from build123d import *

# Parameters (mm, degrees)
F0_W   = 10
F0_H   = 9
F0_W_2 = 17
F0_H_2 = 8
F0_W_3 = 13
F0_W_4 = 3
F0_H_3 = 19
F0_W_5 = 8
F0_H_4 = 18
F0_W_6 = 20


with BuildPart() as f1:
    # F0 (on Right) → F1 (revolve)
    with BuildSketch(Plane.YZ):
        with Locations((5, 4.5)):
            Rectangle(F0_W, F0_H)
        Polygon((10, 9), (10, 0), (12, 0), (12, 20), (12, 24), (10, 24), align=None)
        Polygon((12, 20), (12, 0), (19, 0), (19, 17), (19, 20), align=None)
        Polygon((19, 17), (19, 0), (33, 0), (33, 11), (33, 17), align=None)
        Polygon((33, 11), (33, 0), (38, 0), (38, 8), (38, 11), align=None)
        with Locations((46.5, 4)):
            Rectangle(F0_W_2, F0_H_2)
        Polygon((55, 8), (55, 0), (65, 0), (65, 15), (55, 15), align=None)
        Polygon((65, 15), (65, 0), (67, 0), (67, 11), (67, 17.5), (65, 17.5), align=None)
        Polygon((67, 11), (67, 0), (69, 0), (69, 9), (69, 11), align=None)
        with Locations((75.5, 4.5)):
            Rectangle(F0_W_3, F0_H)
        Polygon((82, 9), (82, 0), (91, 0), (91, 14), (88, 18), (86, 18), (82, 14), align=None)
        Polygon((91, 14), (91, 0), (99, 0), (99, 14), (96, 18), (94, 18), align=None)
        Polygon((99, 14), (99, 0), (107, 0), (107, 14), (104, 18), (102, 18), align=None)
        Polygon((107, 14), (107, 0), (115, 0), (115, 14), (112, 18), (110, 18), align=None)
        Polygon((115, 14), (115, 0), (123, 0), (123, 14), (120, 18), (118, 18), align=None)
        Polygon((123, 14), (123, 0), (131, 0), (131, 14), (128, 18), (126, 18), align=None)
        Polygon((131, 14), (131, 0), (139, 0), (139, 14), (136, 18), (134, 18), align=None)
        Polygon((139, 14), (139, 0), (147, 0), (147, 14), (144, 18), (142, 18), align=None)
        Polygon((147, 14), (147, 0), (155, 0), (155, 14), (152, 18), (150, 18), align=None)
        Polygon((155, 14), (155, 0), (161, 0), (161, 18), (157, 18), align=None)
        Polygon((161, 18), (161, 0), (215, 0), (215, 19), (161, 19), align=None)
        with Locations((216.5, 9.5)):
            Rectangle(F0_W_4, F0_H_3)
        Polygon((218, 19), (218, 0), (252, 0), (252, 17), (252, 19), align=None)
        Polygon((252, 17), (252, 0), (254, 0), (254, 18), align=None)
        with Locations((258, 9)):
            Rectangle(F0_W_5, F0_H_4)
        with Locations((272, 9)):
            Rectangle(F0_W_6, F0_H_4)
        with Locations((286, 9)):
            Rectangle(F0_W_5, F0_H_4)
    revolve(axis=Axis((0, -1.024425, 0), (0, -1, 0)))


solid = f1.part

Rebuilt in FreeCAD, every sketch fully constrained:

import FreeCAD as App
import Part
import Sketcher
Q = App.Units.Quantity


def add_polygon(sketch, points):
    """Adds a closed chain of lines whose ends are joined by coincident constraints."""
    first, n = sketch.GeometryCount, len(points)
    for a, b in zip(points, points[1:] + points[:1]):
        sketch.addGeometry(Part.LineSegment(App.Vector(*a, 0), App.Vector(*b, 0)), False)
    for i in range(n):
        sketch.addConstraint(Sketcher.Constraint("Coincident", first + i, 2, first + (i + 1) % n, 1))

doc = App.newDocument("Part")
body = doc.addObject("PartDesign::Body", "Body")

# Sketch on YZ plane
sketch1 = doc.addObject("Sketcher::SketchObject", "Sketch")
body.addObject(sketch1)
sketch1.AttachmentSupport = (doc.YZ_Plane, [""])
sketch1.MapMode = "FlatFace"
add_polygon(sketch1, [(0, 9), (0, 0), (290, 0), (290, 18), (254, 18), (252, 17), (252, 19), (161, 19), (161, 18), (157, 18), (155, 14), (152, 18), (150, 18), (147, 14), (144, 18), (142, 18), (139, 14), (136, 18), (134, 18), (131, 14), (128, 18), (126, 18), (123, 14), (120, 18), (118, 18), (115, 14), (112, 18), (110, 18), (107, 14), (104, 18), (102, 18), (99, 14), (96, 18), (94, 18), (91, 14), (88, 18), (86, 18), (82, 14), (82, 9), (69, 9), (69, 11), (67, 11), (67, 17.5), (65, 17.5), (65, 15), (55, 15), (55, 8), (38, 8), (38, 11), (33, 11), (33, 17), (19, 17), (19, 20), (12, 20), (12, 24), (10, 24), (10, 9)])  # lines 0-56
sketch1.addConstraint(Sketcher.Constraint("Vertical", 0))
sketch1.addConstraint(Sketcher.Constraint("Horizontal", 1))
sketch1.addConstraint(Sketcher.Constraint("Vertical", 2))
sketch1.addConstraint(Sketcher.Constraint("Horizontal", 3))
sketch1.addConstraint(Sketcher.Constraint("Vertical", 5))
sketch1.addConstraint(Sketcher.Constraint("Horizontal", 6))
sketch1.addConstraint(Sketcher.Constraint("Vertical", 7))
sketch1.addConstraint(Sketcher.Constraint("Horizontal", 8))
sketch1.addConstraint(Sketcher.Constraint("Horizontal", 11))
sketch1.addConstraint(Sketcher.Constraint("Horizontal", 14))
sketch1.addConstraint(Sketcher.Constraint("Horizontal", 17))
sketch1.addConstraint(Sketcher.Constraint("Horizontal", 20))
sketch1.addConstraint(Sketcher.Constraint("Horizontal", 23))
sketch1.addConstraint(Sketcher.Constraint("Horizontal", 26))
sketch1.addConstraint(Sketcher.Constraint("Horizontal", 29))
sketch1.addConstraint(Sketcher.Constraint("Horizontal", 32))
sketch1.addConstraint(Sketcher.Constraint("Horizontal", 35))
sketch1.addConstraint(Sketcher.Constraint("Vertical", 37))
sketch1.addConstraint(Sketcher.Constraint("Horizontal", 38))
sketch1.addConstraint(Sketcher.Constraint("Vertical", 39))
sketch1.addConstraint(Sketcher.Constraint("Horizontal", 40))
sketch1.addConstraint(Sketcher.Constraint("Vertical", 41))
sketch1.addConstraint(Sketcher.Constraint("Horizontal", 42))
sketch1.addConstraint(Sketcher.Constraint("Vertical", 43))
sketch1.addConstraint(Sketcher.Constraint("Horizontal", 44))
sketch1.addConstraint(Sketcher.Constraint("Vertical", 45))
sketch1.addConstraint(Sketcher.Constraint("Horizontal", 46))
sketch1.addConstraint(Sketcher.Constraint("Vertical", 47))
sketch1.addConstraint(Sketcher.Constraint("Horizontal", 48))
sketch1.addConstraint(Sketcher.Constraint("Vertical", 49))
sketch1.addConstraint(Sketcher.Constraint("Horizontal", 50))
sketch1.addConstraint(Sketcher.Constraint("Vertical", 51))
sketch1.addConstraint(Sketcher.Constraint("Horizontal", 52))
sketch1.addConstraint(Sketcher.Constraint("Vertical", 53))
sketch1.addConstraint(Sketcher.Constraint("Horizontal", 54))
sketch1.addConstraint(Sketcher.Constraint("Vertical", 55))
sketch1.addConstraint(Sketcher.Constraint("Horizontal", 56))
sketch1.addConstraint(Sketcher.Constraint("Coincident", 0, 2, -1, 1))
sketch1.addConstraint(Sketcher.Constraint("Parallel", 10, 13))
sketch1.addConstraint(Sketcher.Constraint("Parallel", 12, 15))
sketch1.addConstraint(Sketcher.Constraint("Parallel", 13, 16))
sketch1.addConstraint(Sketcher.Constraint("Parallel", 15, 18))
sketch1.addConstraint(Sketcher.Constraint("Parallel", 16, 19))
sketch1.addConstraint(Sketcher.Constraint("Parallel", 18, 21))
sketch1.addConstraint(Sketcher.Constraint("Parallel", 19, 22))
sketch1.addConstraint(Sketcher.Constraint("Parallel", 21, 24))
sketch1.addConstraint(Sketcher.Constraint("Parallel", 22, 25))
sketch1.addConstraint(Sketcher.Constraint("Parallel", 24, 27))
sketch1.addConstraint(Sketcher.Constraint("Parallel", 25, 28))
sketch1.addConstraint(Sketcher.Constraint("Parallel", 27, 30))
sketch1.addConstraint(Sketcher.Constraint("Parallel", 28, 31))
sketch1.addConstraint(Sketcher.Constraint("Parallel", 30, 33))
sketch1.addConstraint(Sketcher.Constraint("Parallel", 31, 34))
sketch1.addConstraint(Sketcher.Constraint("Horizontal", 3, 2, 7, 2))
sketch1.addConstraint(Sketcher.Constraint("Horizontal", 8, 2, 10, 2))
sketch1.addConstraint(Sketcher.Constraint("Horizontal", 9, 2, 12, 2))
sketch1.addConstraint(Sketcher.Constraint("Horizontal", 11, 2, 13, 2))
sketch1.addConstraint(Sketcher.Constraint("Horizontal", 12, 2, 15, 2))
sketch1.addConstraint(Sketcher.Constraint("Horizontal", 14, 2, 16, 2))
sketch1.addConstraint(Sketcher.Constraint("Horizontal", 15, 2, 18, 2))
sketch1.addConstraint(Sketcher.Constraint("Horizontal", 17, 2, 19, 2))
sketch1.addConstraint(Sketcher.Constraint("Horizontal", 18, 2, 21, 2))
sketch1.addConstraint(Sketcher.Constraint("Horizontal", 20, 2, 22, 2))
sketch1.addConstraint(Sketcher.Constraint("Horizontal", 21, 2, 24, 2))
sketch1.addConstraint(Sketcher.Constraint("Horizontal", 23, 2, 25, 2))
sketch1.addConstraint(Sketcher.Constraint("Horizontal", 24, 2, 27, 2))
sketch1.addConstraint(Sketcher.Constraint("Horizontal", 26, 2, 28, 2))
sketch1.addConstraint(Sketcher.Constraint("Horizontal", 27, 2, 30, 2))
sketch1.addConstraint(Sketcher.Constraint("Horizontal", 29, 2, 31, 2))
sketch1.addConstraint(Sketcher.Constraint("Horizontal", 30, 2, 33, 2))
sketch1.addConstraint(Sketcher.Constraint("Horizontal", 32, 2, 34, 2))
sketch1.addConstraint(Sketcher.Constraint("Horizontal", 33, 2, 36, 2))
sketch1.addConstraint(Sketcher.Constraint("Horizontal", 40, 2, 47, 2))
sketch1.addConstraint(Sketcher.Constraint("Horizontal", 4, 2, 49, 2))
sketch1.addConstraint(Sketcher.Constraint("Horizontal", 38, 2, 55, 2))
sketch1.addConstraint(Sketcher.Constraint("Equal", 11, 14))
sketch1.addConstraint(Sketcher.Constraint("Equal", 14, 17))
sketch1.addConstraint(Sketcher.Constraint("Equal", 17, 20))
sketch1.addConstraint(Sketcher.Constraint("Equal", 20, 23))
sketch1.addConstraint(Sketcher.Constraint("Equal", 23, 26))
sketch1.addConstraint(Sketcher.Constraint("Equal", 26, 29))
sketch1.addConstraint(Sketcher.Constraint("Equal", 29, 32))
sketch1.addConstraint(Sketcher.Constraint("Equal", 32, 35))
sketch1.addConstraint(Sketcher.Constraint("Equal", 35, 40))
sketch1.addConstraint(Sketcher.Constraint("Equal", 40, 42))
sketch1.addConstraint(Sketcher.Constraint("Equal", 42, 54))
sketch1.addConstraint(Sketcher.Constraint("Equal", 44, 56))
sketch1.addConstraint(Sketcher.Constraint("Equal", 54, 5))
sketch1.addConstraint(Sketcher.Constraint("Equal", 48, 37))
sketch1.addConstraint(Sketcher.Constraint("Equal", 5, 39))
sketch1.addConstraint(Sketcher.Constraint("Equal", 52, 45))
sketch1.addConstraint(Sketcher.Constraint("Equal", 47, 51))
sketch1.addConstraint(Sketcher.Constraint("Equal", 8, 53))
sketch1.addConstraint(Sketcher.Constraint("Equal", 10, 12))
sketch1.addConstraint(Sketcher.Constraint("DistanceX", 1, 1, 1, 2, 290.0))
sketch1.addConstraint(Sketcher.Constraint("DistanceX", 3, 2, 3, 1, 36.0))
sketch1.addConstraint(Sketcher.Constraint("DistanceX", 6, 2, 6, 1, 91.0))
sketch1.addConstraint(Sketcher.Constraint("DistanceX", 8, 2, 8, 1, 4.0))
sketch1.addConstraint(Sketcher.Constraint("DistanceX", 11, 2, 11, 1, 2.0))
sketch1.addConstraint(Sketcher.Constraint("DistanceX", 38, 2, 38, 1, 13.0))
sketch1.addConstraint(Sketcher.Constraint("DistanceX", 44, 2, 44, 1, 10.0))
sketch1.addConstraint(Sketcher.Constraint("DistanceX", 46, 2, 46, 1, 17.0))
sketch1.addConstraint(Sketcher.Constraint("DistanceX", 48, 2, 48, 1, 5.0))
sketch1.addConstraint(Sketcher.Constraint("DistanceX", 50, 2, 50, 1, 14.0))
sketch1.addConstraint(Sketcher.Constraint("DistanceX", 52, 2, 52, 1, 7.0))
sketch1.addConstraint(Sketcher.Constraint("DistanceY", 0, 2, 0, 1, 9.0))
sketch1.addConstraint(Sketcher.Constraint("DistanceY", 2, 1, 2, 2, 18.0))
sketch1.addConstraint(Sketcher.Constraint("DistanceY", 7, 2, 7, 1, 1.0))
sketch1.addConstraint(Sketcher.Constraint("DistanceY", 47, 1, 47, 2, 3.0))
sketch1.addConstraint(Sketcher.Constraint("Angle", 36, Q("-135 deg")))
sketch1.addConstraint(Sketcher.Constraint("Distance", 10, 5.0))
sketch1.addConstraint(Sketcher.Constraint("DistanceY", 41, 1, 41, 2, 6.5))
sketch1.addConstraint(Sketcher.Constraint("DistanceX", -1, 1, 4, 2, 252.0))
revolution = doc.addObject("PartDesign::Revolution", "Revolution")
body.addObject(revolution)
revolution.Profile = sketch1
revolution.ReferenceAxis = (sketch1, ["H_Axis"])
revolution.Angle = 360

doc.recompute()
